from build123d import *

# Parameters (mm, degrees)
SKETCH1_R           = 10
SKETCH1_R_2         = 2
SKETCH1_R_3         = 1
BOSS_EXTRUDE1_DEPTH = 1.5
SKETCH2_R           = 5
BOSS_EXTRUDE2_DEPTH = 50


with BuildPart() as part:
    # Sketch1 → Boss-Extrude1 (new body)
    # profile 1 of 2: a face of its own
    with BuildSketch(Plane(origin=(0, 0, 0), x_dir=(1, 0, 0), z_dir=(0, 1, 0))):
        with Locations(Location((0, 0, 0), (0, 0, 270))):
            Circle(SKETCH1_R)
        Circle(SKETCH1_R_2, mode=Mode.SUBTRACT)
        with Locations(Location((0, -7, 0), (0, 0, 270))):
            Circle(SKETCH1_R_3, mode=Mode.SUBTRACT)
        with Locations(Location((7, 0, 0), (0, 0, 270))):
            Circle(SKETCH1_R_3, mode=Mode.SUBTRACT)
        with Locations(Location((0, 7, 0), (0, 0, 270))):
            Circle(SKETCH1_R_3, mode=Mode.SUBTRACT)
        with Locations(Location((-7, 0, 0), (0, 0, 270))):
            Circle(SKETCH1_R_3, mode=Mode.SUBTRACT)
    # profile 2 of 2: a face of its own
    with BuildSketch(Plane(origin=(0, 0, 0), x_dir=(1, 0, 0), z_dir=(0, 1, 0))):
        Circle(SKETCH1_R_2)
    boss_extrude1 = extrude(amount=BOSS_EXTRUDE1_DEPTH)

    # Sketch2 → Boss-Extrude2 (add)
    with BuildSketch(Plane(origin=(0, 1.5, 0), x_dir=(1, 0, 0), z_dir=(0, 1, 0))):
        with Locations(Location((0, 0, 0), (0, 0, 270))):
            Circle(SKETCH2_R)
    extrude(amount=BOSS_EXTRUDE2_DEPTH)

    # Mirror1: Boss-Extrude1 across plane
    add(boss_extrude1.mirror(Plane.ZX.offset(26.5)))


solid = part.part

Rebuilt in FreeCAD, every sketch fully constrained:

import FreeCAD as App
import Part
import Sketcher

V = App.Vector

doc = App.newDocument("Part")
body = doc.addObject("PartDesign::Body", "Body")

sketch1 = doc.addObject("Sketcher::SketchObject", "Sketch")
body.addObject(sketch1)
sketch1.AttachmentSupport = (doc.XZ_Plane, [""])
sketch1.MapMode = "FlatFace"
sketch1.addGeometry([
    Part.Circle(V(0, 0, 0), V(0, 0, 1), 10),
    Part.Circle(V(0, -7, 0), V(0, 0, 1), 1),
    Part.Circle(V(-7, 0, 0), V(0, 0, 1), 1),
    Part.Circle(V(7, 0, 0), V(0, 0, 1), 1),
    Part.Circle(V(0, 7, 0), V(0, 0, 1), 1),
], False)
sketch1.addConstraint([
    Sketcher.Constraint("Coincident", 0, 3, -1, 1),
    Sketcher.Constraint("Equal", 1, 2),
    Sketcher.Constraint("Equal", 2, 3),
    Sketcher.Constraint("Equal", 3, 4),
    Sketcher.Constraint("Symmetric", 2, 3, 3, 3, -1, 1),
    Sketcher.Constraint("Symmetric", 1, 3, 4, 3, -1, 1),
    Sketcher.Constraint("PointOnObject", 1, 3, -2),
    Sketcher.Constraint("PointOnObject", 2, 3, -1),
    Sketcher.Constraint("Diameter", 0, 20.0),
    Sketcher.Constraint("Diameter", 1, 2.0),
    Sketcher.Constraint("DistanceY", 1, 3, -1, 1, 7.0),
    Sketcher.Constraint("DistanceX", 2, 3, -1, 1, 7.0),
])
pad1 = doc.addObject("PartDesign::Pad", "Pad")
body.addObject(pad1)
pad1.Profile = sketch1
pad1.Length = 1.5
pad1.Reversed = True

sketch2 = doc.addObject("Sketcher::SketchObject", "Sketch001")
body.addObject(sketch2)
sketch2.AttachmentSupport = (doc.XZ_Plane, [""])
sketch2.MapMode = "FlatFace"
sketch2.AttachmentOffset = App.Placement(V(0, 0, -1.5), App.Rotation())
sketch2.addGeometry(Part.Circle(V(0, 0, 0), V(0, 0, 1), 5), False)
sketch2.addConstraint([
    Sketcher.Constraint("Coincident", 0, 3, -1, 1),
    Sketcher.Constraint("Diameter", 0, 10.0),
])
pad2 = doc.addObject("PartDesign::Pad", "Pad001")
body.addObject(pad2)
pad2.Profile = sketch2
pad2.Length = 50
pad2.Reversed = True
doc.recompute()

datumplane = doc.addObject("PartDesign::Plane", "DatumPlane")
body.addObject(datumplane)
datumplane.AttachmentSupport = (doc.XZ_Plane, [""])
datumplane.MapMode = "FlatFace"
datumplane.AttachmentOffset = App.Placement(V(0, 0, -26.5), App.Rotation())
mirrored = doc.addObject("PartDesign::Mirrored", "Mirrored")
body.addObject(mirrored)
mirrored.Originals = [pad1]
mirrored.MirrorPlane = (datumplane, [""])
body.Tip = mirrored

doc.recompute()
